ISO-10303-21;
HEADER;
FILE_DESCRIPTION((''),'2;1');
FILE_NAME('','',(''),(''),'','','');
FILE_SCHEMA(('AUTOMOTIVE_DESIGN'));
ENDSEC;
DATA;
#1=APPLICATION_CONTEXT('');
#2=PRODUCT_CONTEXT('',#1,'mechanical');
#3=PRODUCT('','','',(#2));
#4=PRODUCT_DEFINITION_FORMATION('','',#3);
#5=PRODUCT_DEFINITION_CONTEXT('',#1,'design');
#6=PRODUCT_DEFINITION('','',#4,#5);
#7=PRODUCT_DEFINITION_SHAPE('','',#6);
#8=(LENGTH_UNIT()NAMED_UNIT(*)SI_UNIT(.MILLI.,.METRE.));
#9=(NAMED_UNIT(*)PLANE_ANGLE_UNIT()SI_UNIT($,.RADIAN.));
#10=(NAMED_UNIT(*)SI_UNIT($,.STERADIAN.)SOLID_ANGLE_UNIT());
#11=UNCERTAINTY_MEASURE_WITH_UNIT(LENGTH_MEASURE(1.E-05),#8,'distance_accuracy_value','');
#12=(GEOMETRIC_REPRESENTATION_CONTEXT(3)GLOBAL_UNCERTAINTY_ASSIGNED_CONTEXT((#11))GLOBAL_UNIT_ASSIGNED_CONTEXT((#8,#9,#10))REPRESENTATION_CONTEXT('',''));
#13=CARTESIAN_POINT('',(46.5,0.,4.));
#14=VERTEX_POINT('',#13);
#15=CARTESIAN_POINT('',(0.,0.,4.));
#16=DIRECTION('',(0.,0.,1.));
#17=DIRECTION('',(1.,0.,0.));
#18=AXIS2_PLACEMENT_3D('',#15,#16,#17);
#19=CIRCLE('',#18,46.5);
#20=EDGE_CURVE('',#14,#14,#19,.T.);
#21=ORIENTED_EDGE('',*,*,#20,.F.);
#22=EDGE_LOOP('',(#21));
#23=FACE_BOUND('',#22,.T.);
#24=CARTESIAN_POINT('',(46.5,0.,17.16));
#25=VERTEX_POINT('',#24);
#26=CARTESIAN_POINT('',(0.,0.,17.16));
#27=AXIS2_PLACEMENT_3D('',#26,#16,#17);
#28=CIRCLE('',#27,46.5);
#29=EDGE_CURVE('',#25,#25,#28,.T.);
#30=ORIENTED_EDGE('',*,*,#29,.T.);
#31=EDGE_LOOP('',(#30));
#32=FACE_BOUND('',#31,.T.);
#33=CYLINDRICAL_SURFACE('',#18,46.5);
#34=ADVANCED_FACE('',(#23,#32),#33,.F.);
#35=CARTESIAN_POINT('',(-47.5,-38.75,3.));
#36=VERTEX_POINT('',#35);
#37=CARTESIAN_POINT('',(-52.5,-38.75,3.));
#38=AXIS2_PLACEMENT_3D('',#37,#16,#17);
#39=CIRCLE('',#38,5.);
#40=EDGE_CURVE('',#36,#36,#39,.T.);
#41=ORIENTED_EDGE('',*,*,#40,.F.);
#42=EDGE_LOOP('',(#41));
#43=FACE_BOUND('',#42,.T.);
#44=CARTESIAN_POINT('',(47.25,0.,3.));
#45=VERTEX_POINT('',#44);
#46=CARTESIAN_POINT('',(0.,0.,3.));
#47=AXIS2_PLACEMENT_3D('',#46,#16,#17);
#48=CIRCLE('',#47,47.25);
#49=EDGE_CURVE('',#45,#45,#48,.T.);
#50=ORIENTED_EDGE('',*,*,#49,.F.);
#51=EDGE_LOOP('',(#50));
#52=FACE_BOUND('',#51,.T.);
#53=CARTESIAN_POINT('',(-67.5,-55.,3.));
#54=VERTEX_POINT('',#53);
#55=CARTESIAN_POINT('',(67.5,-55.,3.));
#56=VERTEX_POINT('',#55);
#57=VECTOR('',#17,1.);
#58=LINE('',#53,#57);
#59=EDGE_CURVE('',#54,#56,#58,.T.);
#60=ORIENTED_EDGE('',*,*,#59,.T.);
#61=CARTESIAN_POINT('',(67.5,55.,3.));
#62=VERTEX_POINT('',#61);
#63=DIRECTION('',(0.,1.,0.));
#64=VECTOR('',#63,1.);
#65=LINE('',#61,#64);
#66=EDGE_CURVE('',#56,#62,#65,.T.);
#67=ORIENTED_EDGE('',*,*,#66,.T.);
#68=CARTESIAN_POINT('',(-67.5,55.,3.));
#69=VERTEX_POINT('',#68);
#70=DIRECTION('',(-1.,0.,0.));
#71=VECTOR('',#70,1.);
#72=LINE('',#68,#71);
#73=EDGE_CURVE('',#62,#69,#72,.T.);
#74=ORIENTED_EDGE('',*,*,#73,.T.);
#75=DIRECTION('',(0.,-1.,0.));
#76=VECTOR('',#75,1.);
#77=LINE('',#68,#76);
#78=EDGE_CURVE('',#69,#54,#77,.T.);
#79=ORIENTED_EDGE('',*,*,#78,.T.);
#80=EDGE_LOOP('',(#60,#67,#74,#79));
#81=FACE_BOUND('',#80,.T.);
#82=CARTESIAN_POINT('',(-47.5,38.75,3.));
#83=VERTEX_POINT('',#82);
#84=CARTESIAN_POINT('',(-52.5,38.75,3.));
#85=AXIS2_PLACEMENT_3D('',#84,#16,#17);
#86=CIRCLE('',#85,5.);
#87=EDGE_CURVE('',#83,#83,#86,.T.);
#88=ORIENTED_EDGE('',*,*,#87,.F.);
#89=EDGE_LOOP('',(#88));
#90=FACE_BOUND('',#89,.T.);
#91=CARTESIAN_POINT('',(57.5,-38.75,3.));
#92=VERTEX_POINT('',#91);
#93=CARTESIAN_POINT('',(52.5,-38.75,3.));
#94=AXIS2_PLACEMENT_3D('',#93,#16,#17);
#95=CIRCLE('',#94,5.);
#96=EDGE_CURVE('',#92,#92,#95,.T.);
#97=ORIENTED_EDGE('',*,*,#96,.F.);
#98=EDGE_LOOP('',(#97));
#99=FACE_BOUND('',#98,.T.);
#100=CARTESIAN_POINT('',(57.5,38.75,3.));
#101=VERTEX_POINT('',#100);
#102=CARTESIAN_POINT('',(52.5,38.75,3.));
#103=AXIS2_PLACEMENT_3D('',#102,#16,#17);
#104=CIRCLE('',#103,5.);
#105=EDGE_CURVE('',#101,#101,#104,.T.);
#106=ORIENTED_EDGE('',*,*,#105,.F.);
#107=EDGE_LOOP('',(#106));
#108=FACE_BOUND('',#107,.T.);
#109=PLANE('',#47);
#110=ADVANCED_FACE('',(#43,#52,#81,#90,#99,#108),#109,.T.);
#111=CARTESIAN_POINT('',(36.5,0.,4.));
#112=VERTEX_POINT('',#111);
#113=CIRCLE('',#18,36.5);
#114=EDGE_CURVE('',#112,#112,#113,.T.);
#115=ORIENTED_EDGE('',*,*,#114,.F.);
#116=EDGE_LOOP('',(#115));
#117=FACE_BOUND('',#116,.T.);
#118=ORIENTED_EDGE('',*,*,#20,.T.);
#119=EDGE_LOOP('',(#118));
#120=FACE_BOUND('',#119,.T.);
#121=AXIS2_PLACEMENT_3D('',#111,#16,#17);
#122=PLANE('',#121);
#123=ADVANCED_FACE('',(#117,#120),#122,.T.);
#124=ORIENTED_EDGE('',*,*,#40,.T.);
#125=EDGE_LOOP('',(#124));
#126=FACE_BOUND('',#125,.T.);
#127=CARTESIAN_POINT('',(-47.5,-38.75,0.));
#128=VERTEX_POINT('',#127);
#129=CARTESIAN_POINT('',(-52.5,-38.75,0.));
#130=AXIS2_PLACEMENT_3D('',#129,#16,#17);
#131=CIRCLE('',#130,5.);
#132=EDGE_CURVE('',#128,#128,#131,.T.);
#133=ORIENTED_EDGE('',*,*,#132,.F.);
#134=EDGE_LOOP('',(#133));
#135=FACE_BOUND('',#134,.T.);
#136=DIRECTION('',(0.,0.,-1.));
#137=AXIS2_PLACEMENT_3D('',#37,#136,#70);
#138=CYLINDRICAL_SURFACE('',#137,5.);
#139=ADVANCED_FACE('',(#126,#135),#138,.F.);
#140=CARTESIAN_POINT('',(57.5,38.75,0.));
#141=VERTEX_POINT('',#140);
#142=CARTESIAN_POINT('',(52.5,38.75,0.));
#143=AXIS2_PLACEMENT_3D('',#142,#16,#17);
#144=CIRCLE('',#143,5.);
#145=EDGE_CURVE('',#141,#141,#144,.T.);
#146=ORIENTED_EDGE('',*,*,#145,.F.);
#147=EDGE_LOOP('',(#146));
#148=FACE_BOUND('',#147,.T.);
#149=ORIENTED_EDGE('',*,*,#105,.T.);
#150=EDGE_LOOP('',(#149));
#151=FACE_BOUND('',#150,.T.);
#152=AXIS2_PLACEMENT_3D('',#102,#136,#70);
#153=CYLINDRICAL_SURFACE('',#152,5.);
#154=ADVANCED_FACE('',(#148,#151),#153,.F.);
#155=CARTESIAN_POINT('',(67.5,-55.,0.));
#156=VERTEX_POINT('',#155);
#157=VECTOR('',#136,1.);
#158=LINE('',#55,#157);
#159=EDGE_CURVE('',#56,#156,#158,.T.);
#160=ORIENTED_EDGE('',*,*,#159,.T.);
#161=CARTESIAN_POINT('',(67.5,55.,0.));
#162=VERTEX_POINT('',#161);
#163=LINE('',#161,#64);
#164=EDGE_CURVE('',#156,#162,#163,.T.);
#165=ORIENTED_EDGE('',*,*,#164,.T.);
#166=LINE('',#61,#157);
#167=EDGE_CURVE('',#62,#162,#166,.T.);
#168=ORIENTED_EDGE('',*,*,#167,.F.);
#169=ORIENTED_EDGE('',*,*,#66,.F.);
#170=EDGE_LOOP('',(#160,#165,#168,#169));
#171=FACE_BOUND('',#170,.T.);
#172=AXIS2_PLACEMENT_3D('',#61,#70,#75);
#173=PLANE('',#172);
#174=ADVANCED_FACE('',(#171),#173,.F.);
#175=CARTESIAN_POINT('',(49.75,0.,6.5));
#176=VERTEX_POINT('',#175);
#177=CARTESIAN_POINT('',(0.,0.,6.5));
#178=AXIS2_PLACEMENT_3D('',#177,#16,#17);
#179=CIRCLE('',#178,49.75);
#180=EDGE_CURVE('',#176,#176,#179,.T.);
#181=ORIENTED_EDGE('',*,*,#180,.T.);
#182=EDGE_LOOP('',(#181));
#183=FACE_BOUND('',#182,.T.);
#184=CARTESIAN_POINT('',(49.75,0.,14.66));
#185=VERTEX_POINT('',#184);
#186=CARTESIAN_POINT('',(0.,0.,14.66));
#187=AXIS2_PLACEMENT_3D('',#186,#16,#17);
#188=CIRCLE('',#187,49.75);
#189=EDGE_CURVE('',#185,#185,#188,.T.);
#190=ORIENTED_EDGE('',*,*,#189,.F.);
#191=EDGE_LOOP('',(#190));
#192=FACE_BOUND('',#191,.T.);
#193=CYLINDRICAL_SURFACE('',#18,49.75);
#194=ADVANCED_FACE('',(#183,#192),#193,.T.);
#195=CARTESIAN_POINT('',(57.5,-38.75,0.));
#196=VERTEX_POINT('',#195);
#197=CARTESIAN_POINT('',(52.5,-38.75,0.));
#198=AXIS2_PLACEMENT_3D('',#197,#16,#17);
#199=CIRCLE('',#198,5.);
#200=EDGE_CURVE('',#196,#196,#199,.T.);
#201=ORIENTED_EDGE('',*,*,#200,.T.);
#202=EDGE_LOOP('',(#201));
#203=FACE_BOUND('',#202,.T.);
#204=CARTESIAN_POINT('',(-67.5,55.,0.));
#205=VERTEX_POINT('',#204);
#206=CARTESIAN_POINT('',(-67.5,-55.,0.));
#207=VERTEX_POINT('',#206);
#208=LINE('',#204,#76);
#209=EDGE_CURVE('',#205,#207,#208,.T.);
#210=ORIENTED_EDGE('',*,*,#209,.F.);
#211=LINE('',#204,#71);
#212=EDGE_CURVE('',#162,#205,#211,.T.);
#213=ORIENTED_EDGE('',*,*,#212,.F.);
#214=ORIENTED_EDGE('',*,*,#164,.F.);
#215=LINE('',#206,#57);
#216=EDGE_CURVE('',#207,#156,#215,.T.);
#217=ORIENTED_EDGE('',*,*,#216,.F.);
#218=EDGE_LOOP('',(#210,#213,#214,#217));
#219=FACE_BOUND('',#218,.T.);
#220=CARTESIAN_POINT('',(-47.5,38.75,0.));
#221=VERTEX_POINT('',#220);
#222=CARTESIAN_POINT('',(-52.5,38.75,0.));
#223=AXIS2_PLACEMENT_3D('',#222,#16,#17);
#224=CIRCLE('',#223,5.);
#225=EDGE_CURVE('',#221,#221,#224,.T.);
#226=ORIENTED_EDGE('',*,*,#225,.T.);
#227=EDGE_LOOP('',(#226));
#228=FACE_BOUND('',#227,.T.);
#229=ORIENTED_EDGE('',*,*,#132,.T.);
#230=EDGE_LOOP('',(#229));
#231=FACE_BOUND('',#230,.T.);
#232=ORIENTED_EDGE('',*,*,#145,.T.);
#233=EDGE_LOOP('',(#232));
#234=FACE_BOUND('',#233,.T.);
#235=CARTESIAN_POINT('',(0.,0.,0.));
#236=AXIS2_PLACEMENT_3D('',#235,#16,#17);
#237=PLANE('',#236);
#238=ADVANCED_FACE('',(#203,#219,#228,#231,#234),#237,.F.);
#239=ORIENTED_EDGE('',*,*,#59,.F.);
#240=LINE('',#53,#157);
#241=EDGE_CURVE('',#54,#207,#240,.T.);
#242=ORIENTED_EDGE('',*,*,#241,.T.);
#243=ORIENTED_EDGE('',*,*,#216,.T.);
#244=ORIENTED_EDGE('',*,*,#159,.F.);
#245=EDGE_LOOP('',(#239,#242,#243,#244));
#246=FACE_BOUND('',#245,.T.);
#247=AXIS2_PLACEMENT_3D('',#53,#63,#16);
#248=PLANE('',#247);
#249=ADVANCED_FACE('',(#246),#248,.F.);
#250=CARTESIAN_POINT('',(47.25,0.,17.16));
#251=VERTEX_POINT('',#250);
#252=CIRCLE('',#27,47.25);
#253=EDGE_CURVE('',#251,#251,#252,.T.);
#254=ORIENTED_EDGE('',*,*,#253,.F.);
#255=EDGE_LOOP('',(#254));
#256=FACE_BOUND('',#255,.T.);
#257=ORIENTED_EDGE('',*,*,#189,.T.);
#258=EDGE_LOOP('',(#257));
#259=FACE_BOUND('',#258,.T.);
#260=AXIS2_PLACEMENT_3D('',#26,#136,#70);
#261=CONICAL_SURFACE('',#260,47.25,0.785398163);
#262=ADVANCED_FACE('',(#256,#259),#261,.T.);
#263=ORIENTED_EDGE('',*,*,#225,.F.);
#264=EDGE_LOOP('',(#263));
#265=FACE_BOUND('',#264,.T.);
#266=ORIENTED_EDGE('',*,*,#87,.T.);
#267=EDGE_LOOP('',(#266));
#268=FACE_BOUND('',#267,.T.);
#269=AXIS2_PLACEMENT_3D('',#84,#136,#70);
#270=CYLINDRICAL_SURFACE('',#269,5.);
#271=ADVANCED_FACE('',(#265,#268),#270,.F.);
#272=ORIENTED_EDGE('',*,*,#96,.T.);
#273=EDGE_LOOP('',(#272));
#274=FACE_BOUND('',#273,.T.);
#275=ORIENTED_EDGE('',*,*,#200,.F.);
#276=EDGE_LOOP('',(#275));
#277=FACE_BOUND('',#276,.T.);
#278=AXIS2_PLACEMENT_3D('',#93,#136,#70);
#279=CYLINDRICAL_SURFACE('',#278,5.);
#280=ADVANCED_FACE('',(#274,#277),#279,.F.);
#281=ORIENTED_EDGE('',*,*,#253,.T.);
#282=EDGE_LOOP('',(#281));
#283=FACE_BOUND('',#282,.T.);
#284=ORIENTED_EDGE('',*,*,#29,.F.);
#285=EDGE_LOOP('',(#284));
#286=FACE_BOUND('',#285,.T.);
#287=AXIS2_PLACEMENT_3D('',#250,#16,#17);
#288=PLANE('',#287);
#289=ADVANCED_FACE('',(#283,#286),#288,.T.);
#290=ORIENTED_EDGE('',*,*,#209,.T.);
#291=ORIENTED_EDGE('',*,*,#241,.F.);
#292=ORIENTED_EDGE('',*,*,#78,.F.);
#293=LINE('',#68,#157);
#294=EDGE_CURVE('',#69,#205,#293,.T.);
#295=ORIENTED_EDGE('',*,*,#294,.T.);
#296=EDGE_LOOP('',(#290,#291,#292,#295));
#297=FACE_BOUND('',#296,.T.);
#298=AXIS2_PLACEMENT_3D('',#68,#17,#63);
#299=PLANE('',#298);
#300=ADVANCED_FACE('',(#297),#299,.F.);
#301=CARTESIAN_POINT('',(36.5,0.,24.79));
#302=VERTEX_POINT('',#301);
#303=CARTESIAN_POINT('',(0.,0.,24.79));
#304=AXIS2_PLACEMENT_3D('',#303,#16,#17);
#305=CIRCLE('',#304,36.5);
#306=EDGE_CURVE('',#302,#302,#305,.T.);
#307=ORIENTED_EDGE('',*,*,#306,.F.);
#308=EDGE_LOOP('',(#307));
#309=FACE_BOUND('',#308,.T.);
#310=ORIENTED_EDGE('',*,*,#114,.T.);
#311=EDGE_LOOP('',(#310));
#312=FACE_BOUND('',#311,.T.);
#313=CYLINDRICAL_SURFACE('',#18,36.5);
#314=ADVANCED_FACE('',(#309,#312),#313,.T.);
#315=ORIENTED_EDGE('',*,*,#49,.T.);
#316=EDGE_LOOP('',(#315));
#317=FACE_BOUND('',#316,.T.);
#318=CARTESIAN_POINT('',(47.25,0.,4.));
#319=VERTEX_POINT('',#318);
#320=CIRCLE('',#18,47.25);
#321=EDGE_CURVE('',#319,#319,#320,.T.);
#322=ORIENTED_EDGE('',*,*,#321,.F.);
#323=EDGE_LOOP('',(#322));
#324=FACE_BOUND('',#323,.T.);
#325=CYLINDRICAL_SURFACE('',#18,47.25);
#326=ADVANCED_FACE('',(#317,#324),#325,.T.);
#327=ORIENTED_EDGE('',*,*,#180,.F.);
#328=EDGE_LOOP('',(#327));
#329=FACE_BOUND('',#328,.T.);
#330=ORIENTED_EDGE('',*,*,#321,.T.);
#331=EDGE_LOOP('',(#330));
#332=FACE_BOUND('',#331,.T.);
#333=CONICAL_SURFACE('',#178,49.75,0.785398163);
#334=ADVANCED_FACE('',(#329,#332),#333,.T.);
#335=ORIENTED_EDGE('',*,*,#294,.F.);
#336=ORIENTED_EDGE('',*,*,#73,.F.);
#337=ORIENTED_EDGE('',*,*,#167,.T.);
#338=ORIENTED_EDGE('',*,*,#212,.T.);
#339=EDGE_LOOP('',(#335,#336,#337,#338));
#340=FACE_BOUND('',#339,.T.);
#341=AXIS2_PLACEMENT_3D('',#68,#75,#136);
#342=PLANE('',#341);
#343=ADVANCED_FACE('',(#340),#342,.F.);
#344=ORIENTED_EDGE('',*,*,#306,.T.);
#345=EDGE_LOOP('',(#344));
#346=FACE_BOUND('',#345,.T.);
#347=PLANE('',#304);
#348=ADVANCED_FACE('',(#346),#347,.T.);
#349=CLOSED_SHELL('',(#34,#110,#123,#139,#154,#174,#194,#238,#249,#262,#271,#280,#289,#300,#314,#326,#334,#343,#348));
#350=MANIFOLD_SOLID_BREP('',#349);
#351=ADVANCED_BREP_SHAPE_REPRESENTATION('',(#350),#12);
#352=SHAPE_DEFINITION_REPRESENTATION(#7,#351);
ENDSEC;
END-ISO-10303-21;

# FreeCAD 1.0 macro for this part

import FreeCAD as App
import Part
import Sketcher
from FreeCAD import Vector

doc = App.newDocument("Part")
body = doc.addObject("PartDesign::Body", "Body")

# Sketch on XY plane
sketch1 = body.newObject("Sketcher::SketchObject", "Sketch")
sketch1.AttachmentSupport = (doc.getObject("XY_Plane"), [""])
sketch1.MapMode = "FlatFace"
sketch1.addGeometry([
    Part.LineSegment(Vector(-67.5, 55, 0), Vector(-67.5, -55, 0)),  # 0
    Part.LineSegment(Vector(-67.5, -55, 0), Vector(67.5, -55, 0)),  # 1
    Part.LineSegment(Vector(67.5, -55, 0), Vector(67.5, 55, 0)),  # 2
    Part.LineSegment(Vector(67.5, 55, 0), Vector(-67.5, 55, 0)),  # 3
    Part.Circle(Vector(-52.5, -38.75, 0), Vector(0, 0, 1), 5),  # 4
    Part.Circle(Vector(52.5, -38.75, 0), Vector(0, 0, 1), 5),  # 5
    Part.Circle(Vector(-52.5, 38.75, 0), Vector(0, 0, 1), 5),  # 6
    Part.Circle(Vector(52.5, 38.75, 0), Vector(0, 0, 1), 5),  # 7
], False)
sketch1.addConstraint([
    Sketcher.Constraint("Coincident", 0, 2, 1, 1),
    Sketcher.Constraint("Coincident", 1, 2, 2, 1),
    Sketcher.Constraint("Coincident", 2, 2, 3, 1),
    Sketcher.Constraint("Coincident", 3, 2, 0, 1),
    Sketcher.Constraint("Vertical", 0),
    Sketcher.Constraint("Horizontal", 1),
    Sketcher.Constraint("Vertical", 2),
    Sketcher.Constraint("Horizontal", 3),
    Sketcher.Constraint("Equal", 4, 5),
    Sketcher.Constraint("Equal", 5, 6),
    Sketcher.Constraint("Equal", 6, 7),
    Sketcher.Constraint("Symmetric", 5, 3, 6, 3, -1, 1),
    Sketcher.Constraint("Symmetric", 4, 3, 7, 3, -1, 1),
    Sketcher.Constraint("Symmetric", 0, 2, 2, 2, -1, 1),
    Sketcher.Constraint("Symmetric", 4, 3, 5, 3, -2),
    Sketcher.Constraint("Diameter", 4, 10.0),
    Sketcher.Constraint("DistanceX", 1, 1, 1, 2, 135.0),
    Sketcher.Constraint("DistanceY", 0, 2, 0, 1, 110.0),
    Sketcher.Constraint("DistanceX", 4, 3, 5, 3, 105.0),
    Sketcher.Constraint("DistanceY", 4, 3, 6, 3, 77.5),
])
pad1 = body.newObject("PartDesign::Pad", "Pad")
pad1.Profile = sketch1
pad1.Length = 3

# Sketch on XZ plane
sketch2 = body.newObject("Sketcher::SketchObject", "Sketch001")
sketch2.AttachmentSupport = (doc.getObject("XZ_Plane"), [""])
sketch2.MapMode = "FlatFace"
sketch2.addGeometry([
    Part.LineSegment(Vector(49.75, 6.5, 0), Vector(47.25, 4, 0)),  # 0
    Part.LineSegment(Vector(47.25, 4, 0), Vector(47.25, 3, 0)),  # 1
    Part.LineSegment(Vector(47.25, 3, 0), Vector(0, 3, 0)),  # 2
    Part.LineSegment(Vector(0, 3, 0), Vector(0, 24.79, 0)),  # 3
    Part.LineSegment(Vector(0, 24.79, 0), Vector(36.5, 24.79, 0)),  # 4
    Part.LineSegment(Vector(36.5, 24.79, 0), Vector(36.5, 4, 0)),  # 5
    Part.LineSegment(Vector(36.5, 4, 0), Vector(46.5, 4, 0)),  # 6
    Part.LineSegment(Vector(46.5, 4, 0), Vector(46.5, 17.16, 0)),  # 7
    Part.LineSegment(Vector(46.5, 17.16, 0), Vector(47.25, 17.16, 0)),  # 8
    Part.LineSegment(Vector(47.25, 17.16, 0), Vector(49.75, 14.66, 0)),  # 9
    Part.LineSegment(Vector(49.75, 14.66, 0), Vector(49.75, 6.5, 0)),  # 10
], False)
sketch2.addConstraint([
    Sketcher.Constraint("Coincident", 0, 2, 1, 1),
    Sketcher.Constraint("Coincident", 1, 2, 2, 1),
    Sketcher.Constraint("Coincident", 2, 2, 3, 1),
    Sketcher.Constraint("Coincident", 3, 2, 4, 1),
    Sketcher.Constraint("Coincident", 4, 2, 5, 1),
    Sketcher.Constraint("Coincident", 5, 2, 6, 1),
    Sketcher.Constraint("Coincident", 6, 2, 7, 1),
    Sketcher.Constraint("Coincident", 7, 2, 8, 1),
    Sketcher.Constraint("Coincident", 8, 2, 9, 1),
    Sketcher.Constraint("Coincident", 9, 2, 10, 1),
    Sketcher.Constraint("Coincident", 10, 2, 0, 1),
    Sketcher.Constraint("Vertical", 1),
    Sketcher.Constraint("Horizontal", 2),
    Sketcher.Constraint("Vertical", 3),
    Sketcher.Constraint("Horizontal", 4),
    Sketcher.Constraint("Vertical", 5),
    Sketcher.Constraint("Horizontal", 6),
    Sketcher.Constraint("Vertical", 7),
    Sketcher.Constraint("Horizontal", 8),
    Sketcher.Constraint("Vertical", 10),
    Sketcher.Constraint("PointOnObject", 2, 2, -2),
    Sketcher.Constraint("Perpendicular", 0, 9),
    Sketcher.Constraint("Horizontal", 0, 2, 5, 2),
    Sketcher.Constraint("Vertical", 1, 2, 8, 2),
    Sketcher.Constraint("Equal", 0, 9),
    Sketcher.Constraint("DistanceX", 6, 1, 6, 2, 10.0),
    Sketcher.Constraint("DistanceY", 1, 2, 1, 1, 1.0),
    Sketcher.Constraint("DistanceX", 4, 1, 4, 2, 36.5),
    Sketcher.Constraint("DistanceY", -1, 1, 0, 2, 4.0),
    Sketcher.Constraint("DistanceX", 2, 2, 2, 1, 47.25),
    Sketcher.Constraint("DistanceY", 3, 1, 3, 2, 21.79),
    Sketcher.Constraint("DistanceY", 7, 1, 7, 2, 13.16),
    Sketcher.Constraint("DistanceY", 10, 2, 10, 1, 8.16),
])
revolution = body.newObject("PartDesign::Revolution", "Revolution")
revolution.Profile = sketch2
revolution.ReferenceAxis = (sketch2, ["V_Axis"])
revolution.Angle = 360

doc.recompute()
